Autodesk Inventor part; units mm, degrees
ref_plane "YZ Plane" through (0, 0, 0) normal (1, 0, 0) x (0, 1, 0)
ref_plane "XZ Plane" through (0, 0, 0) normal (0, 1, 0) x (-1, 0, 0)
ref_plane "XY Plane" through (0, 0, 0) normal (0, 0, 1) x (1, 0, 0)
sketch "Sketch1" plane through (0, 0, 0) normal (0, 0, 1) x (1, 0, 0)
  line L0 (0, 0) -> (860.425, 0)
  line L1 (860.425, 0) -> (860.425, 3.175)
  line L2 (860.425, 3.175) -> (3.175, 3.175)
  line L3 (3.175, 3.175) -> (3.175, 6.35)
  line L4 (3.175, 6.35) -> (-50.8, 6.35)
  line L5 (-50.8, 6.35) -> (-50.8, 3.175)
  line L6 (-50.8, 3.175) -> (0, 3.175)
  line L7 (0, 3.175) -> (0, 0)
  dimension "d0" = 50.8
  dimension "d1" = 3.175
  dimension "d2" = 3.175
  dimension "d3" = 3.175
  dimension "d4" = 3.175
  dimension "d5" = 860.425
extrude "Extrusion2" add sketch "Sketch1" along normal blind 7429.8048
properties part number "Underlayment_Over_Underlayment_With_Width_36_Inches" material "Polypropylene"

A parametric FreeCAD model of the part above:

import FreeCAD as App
import Part
import Sketcher
Q = App.Units.Quantity

doc = App.newDocument("Part")
body = doc.addObject("PartDesign::Body", "Body")

# Sketch on XY plane
sketch1 = doc.addObject("Sketcher::SketchObject", "Sketch")
body.addObject(sketch1)
sketch1.AttachmentSupport = (doc.XY_Plane, [""])
sketch1.MapMode = "FlatFace"
sketch1.addGeometry([
    Part.LineSegment(App.Vector(0, 3.2, 0), App.Vector(0, 0, 0)),  # 0
    Part.LineSegment(App.Vector(0, 0, 0), App.Vector(860.4, 0, 0)),  # 1
    Part.LineSegment(App.Vector(860.4, 0, 0), App.Vector(860.4, 3.2, 0)),  # 2
    Part.LineSegment(App.Vector(860.4, 3.2, 0), App.Vector(3.2, 3.2, 0)),  # 3
    Part.LineSegment(App.Vector(3.2, 3.2, 0), App.Vector(3.2, 6.3, 0)),  # 4
    Part.LineSegment(App.Vector(3.2, 6.3, 0), App.Vector(-50.8, 6.3, 0)),  # 5
    Part.LineSegment(App.Vector(-50.8, 6.3, 0), App.Vector(-50.8, 3.2, 0)),  # 6
    Part.LineSegment(App.Vector(-50.8, 3.2, 0), App.Vector(0, 3.2, 0)),  # 7
], False)
sketch1.addConstraint([
    Sketcher.Constraint("Coincident", 0, 2, 1, 1),
    Sketcher.Constraint("Coincident", 1, 2, 2, 1),
    Sketcher.Constraint("Coincident", 2, 2, 3, 1),
    Sketcher.Constraint("Coincident", 3, 2, 4, 1),
    Sketcher.Constraint("Coincident", 4, 2, 5, 1),
    Sketcher.Constraint("Coincident", 5, 2, 6, 1),
    Sketcher.Constraint("Coincident", 6, 2, 7, 1),
    Sketcher.Constraint("Coincident", 7, 2, 0, 1),
    Sketcher.Constraint("Vertical", 0),
    Sketcher.Constraint("Horizontal", 1),
    Sketcher.Constraint("Vertical", 2),
    Sketcher.Constraint("Horizontal", 3),
    Sketcher.Constraint("Vertical", 4),
    Sketcher.Constraint("Horizontal", 5),
    Sketcher.Constraint("Vertical", 6),
    Sketcher.Constraint("Horizontal", 7),
    Sketcher.Constraint("Coincident", 0, 2, -1, 1),
    Sketcher.Constraint("Horizontal", 3, 2, 6, 2),
    Sketcher.Constraint("Equal", 2, 4),
    Sketcher.Constraint("DistanceX", 7, 1, 7, 2, Q("2 in")),
    Sketcher.Constraint("DistanceX", 1, 1, 1, 2, Q("33.875 in")),
    Sketcher.Constraint("DistanceY", 0, 2, 0, 1, Q("0.125 in")),
    Sketcher.Constraint("DistanceX", -1, 1, 3, 2, Q("0.125 in")),
])
pad1 = doc.addObject("PartDesign::Pad", "Pad")
body.addObject(pad1)
pad1.Profile = sketch1
pad1.Length = Q("292.512 in")

doc.recompute()
